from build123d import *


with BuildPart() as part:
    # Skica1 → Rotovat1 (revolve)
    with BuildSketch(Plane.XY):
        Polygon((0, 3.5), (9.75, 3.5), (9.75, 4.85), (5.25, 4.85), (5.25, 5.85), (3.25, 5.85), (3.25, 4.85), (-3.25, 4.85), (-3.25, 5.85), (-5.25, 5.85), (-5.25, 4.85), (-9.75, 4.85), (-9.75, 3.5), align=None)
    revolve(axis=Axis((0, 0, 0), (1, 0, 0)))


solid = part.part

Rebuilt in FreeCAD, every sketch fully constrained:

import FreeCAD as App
import Part
import Sketcher
from FreeCAD import Vector
Q = App.Units.Quantity

doc = App.newDocument("Part")
body = doc.addObject("PartDesign::Body", "Body")

sketch1 = body.newObject("Sketcher::SketchObject", "Sketch")
sketch1.AttachmentSupport = (doc.getObject("XY_Plane"), [""])
sketch1.MapMode = "FlatFace"
sketch1.addGeometry(Part.LineSegment(Vector(9.75, 3.5, 0), Vector(9.75, 4.85, 0)), False)
sketch1.addGeometry(Part.LineSegment(Vector(9.75, 4.85, 0), Vector(5.25, 4.85, 0)), False)
sketch1.addGeometry(Part.LineSegment(Vector(5.25, 4.85, 0), Vector(5.25, 5.85, 0)), False)
sketch1.addGeometry(Part.LineSegment(Vector(5.25, 5.85, 0), Vector(3.25, 5.85, 0)), False)
sketch1.addGeometry(Part.LineSegment(Vector(3.25, 5.85, 0), Vector(3.25, 4.85, 0)), False)
sketch1.addGeometry(Part.LineSegment(Vector(3.25, 4.85, 0), Vector(-3.25, 4.85, 0)), False)
sketch1.addGeometry(Part.LineSegment(Vector(-3.25, 4.85, 0), Vector(-3.25, 5.85, 0)), False)
sketch1.addGeometry(Part.LineSegment(Vector(-3.25, 5.85, 0), Vector(-5.25, 5.85, 0)), False)
sketch1.addGeometry(Part.LineSegment(Vector(-5.25, 5.85, 0), Vector(-5.25, 4.85, 0)), False)
sketch1.addGeometry(Part.LineSegment(Vector(-5.25, 4.85, 0), Vector(-9.75, 4.85, 0)), False)
sketch1.addGeometry(Part.LineSegment(Vector(-9.75, 4.85, 0), Vector(-9.75, 3.5, 0)), False)
sketch1.addGeometry(Part.LineSegment(Vector(-9.75, 3.5, 0), Vector(9.75, 3.5, 0)), False)
sketch1.addConstraint(Sketcher.Constraint("Coincident", 0, 2, 1, 1))
sketch1.addConstraint(Sketcher.Constraint("Coincident", 1, 2, 2, 1))
sketch1.addConstraint(Sketcher.Constraint("Coincident", 2, 2, 3, 1))
sketch1.addConstraint(Sketcher.Constraint("Coincident", 3, 2, 4, 1))
sketch1.addConstraint(Sketcher.Constraint("Coincident", 4, 2, 5, 1))
sketch1.addConstraint(Sketcher.Constraint("Coincident", 5, 2, 6, 1))
sketch1.addConstraint(Sketcher.Constraint("Coincident", 6, 2, 7, 1))
sketch1.addConstraint(Sketcher.Constraint("Coincident", 7, 2, 8, 1))
sketch1.addConstraint(Sketcher.Constraint("Coincident", 8, 2, 9, 1))
sketch1.addConstraint(Sketcher.Constraint("Coincident", 9, 2, 10, 1))
sketch1.addConstraint(Sketcher.Constraint("Coincident", 10, 2, 11, 1))
sketch1.addConstraint(Sketcher.Constraint("Coincident", 11, 2, 0, 1))
sketch1.addConstraint(Sketcher.Constraint("Vertical", 0))
sketch1.addConstraint(Sketcher.Constraint("Horizontal", 1))
sketch1.addConstraint(Sketcher.Constraint("Vertical", 2))
sketch1.addConstraint(Sketcher.Constraint("Horizontal", 3))
sketch1.addConstraint(Sketcher.Constraint("Vertical", 4))
sketch1.addConstraint(Sketcher.Constraint("Horizontal", 5))
sketch1.addConstraint(Sketcher.Constraint("Vertical", 6))
sketch1.addConstraint(Sketcher.Constraint("Horizontal", 7))
sketch1.addConstraint(Sketcher.Constraint("Vertical", 8))
sketch1.addConstraint(Sketcher.Constraint("Horizontal", 9))
sketch1.addConstraint(Sketcher.Constraint("Vertical", 10))
sketch1.addConstraint(Sketcher.Constraint("Horizontal", 11))
sketch1.addConstraint(Sketcher.Constraint("Symmetric", 3, 2, 6, 2, -2))
sketch1.addConstraint(Sketcher.Constraint("Symmetric", 1, 2, 8, 2, -2))
sketch1.addConstraint(Sketcher.Constraint("Horizontal", 1, 2, 4, 2))
sketch1.addConstraint(Sketcher.Constraint("Equal", 1, 9))
sketch1.addConstraint(Sketcher.Constraint("DistanceX", 3, 2, 3, 1, Q("2 mm")))
sketch1.addConstraint(Sketcher.Constraint("DistanceY", 2, 1, 2, 2, Q("1 mm")))
sketch1.addConstraint(Sketcher.Constraint("DistanceX", 1, 2, 1, 1, Q("4.5 mm")))
sketch1.addConstraint(Sketcher.Constraint("DistanceX", 5, 2, 5, 1, Q("6.5 mm")))
sketch1.addConstraint(Sketcher.Constraint("DistanceY", 0, 1, 0, 2, Q("1.35 mm")))
sketch1.addConstraint(Sketcher.Constraint("DistanceY", -1, 1, 10, 2, Q("3.5 mm")))
revolution = body.newObject("PartDesign::Revolution", "Revolution")
revolution.Profile = sketch1
revolution.ReferenceAxis = (sketch1, ["H_Axis"])
revolution.Angle = 360

doc.recompute()
